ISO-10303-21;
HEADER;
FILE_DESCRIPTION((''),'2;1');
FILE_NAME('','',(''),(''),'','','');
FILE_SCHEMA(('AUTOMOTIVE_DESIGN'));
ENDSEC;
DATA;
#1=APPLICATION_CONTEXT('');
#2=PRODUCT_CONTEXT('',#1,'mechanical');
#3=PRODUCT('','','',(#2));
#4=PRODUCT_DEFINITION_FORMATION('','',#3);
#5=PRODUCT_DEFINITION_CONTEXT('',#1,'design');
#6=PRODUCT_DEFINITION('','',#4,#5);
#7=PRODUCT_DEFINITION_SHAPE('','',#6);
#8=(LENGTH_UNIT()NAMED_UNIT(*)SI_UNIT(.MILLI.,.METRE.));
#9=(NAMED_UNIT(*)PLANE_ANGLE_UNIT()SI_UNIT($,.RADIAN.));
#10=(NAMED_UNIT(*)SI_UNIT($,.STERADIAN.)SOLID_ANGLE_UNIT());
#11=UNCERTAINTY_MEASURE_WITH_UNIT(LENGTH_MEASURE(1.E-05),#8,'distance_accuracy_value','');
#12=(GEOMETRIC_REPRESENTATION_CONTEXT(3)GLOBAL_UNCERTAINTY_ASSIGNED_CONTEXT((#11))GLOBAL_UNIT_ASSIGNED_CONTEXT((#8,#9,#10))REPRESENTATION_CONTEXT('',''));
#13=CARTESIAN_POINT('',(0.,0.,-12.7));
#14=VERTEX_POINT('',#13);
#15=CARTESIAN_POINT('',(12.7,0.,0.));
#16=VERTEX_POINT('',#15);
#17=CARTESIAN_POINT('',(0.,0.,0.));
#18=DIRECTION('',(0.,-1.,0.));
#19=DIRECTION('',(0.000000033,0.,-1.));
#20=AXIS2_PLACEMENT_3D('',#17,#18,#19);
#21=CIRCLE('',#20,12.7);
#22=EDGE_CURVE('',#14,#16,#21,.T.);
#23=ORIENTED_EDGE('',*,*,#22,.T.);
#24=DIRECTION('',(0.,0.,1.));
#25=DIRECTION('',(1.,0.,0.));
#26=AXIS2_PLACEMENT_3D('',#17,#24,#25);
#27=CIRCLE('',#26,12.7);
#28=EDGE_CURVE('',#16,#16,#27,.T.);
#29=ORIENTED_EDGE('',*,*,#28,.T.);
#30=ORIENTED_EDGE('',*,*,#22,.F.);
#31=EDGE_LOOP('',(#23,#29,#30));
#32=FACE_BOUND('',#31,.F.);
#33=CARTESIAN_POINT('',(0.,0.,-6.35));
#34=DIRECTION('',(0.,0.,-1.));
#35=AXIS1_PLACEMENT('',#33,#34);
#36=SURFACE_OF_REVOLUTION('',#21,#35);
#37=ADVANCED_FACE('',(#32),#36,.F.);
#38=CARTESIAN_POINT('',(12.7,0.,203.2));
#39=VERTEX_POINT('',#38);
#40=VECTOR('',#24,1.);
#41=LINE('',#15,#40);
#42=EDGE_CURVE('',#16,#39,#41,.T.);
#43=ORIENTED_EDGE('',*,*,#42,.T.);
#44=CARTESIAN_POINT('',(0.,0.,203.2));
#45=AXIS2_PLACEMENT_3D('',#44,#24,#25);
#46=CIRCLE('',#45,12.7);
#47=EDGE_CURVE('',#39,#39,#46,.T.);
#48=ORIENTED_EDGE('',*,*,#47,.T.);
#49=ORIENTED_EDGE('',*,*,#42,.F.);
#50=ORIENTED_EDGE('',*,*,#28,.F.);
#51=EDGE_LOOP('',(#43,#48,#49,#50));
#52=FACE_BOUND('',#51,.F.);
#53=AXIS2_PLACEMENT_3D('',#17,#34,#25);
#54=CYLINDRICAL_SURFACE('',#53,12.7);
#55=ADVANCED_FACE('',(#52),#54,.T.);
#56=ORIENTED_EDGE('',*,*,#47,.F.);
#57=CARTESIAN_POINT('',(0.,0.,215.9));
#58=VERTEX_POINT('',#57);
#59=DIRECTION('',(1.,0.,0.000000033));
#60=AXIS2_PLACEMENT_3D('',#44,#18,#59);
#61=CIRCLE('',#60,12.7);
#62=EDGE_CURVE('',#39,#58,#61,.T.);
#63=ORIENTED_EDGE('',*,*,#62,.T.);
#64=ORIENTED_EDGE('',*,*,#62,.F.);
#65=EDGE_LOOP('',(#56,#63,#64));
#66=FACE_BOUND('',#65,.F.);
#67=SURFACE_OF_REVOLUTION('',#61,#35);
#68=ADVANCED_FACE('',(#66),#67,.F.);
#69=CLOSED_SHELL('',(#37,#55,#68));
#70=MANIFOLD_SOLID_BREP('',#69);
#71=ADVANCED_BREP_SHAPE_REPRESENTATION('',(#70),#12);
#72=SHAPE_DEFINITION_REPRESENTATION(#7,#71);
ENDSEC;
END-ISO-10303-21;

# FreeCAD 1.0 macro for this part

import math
import FreeCAD as App
import Part
import Sketcher

V = App.Vector
Q = App.Units.Quantity

doc = App.newDocument("Part")
body = doc.addObject("PartDesign::Body", "Body")

# Sketch on XY plane
sketch1 = doc.addObject("Sketcher::SketchObject", "Sketch")
body.addObject(sketch1)
sketch1.AttachmentSupport = (doc.XY_Plane, [""])
sketch1.MapMode = "FlatFace"
sketch1.addGeometry(Part.Circle(V(0, 0, 0), V(0, 0, 1), 13), False)
sketch1.addConstraint([
    Sketcher.Constraint("Coincident", 0, 3, -1, 1),
    Sketcher.Constraint("Diameter", 0, Q("1 in")),
])
pad1 = doc.addObject("PartDesign::Pad", "Pad")
body.addObject(pad1)
pad1.Profile = sketch1
pad1.Length = Q("8 in")

# Sketch on XZ plane
sketch2 = doc.addObject("Sketcher::SketchObject", "Sketch001")
body.addObject(sketch2)
sketch2.AttachmentSupport = (doc.XZ_Plane, [""])
sketch2.MapMode = "FlatFace"
sketch2.addGeometry([
    Part.LineSegment(V(0, 216, 0), V(0, 203, 0)),  # 0
    Part.LineSegment(V(0, 203, 0), V(13, 203, 0)),  # 1
    Part.ArcOfCircle(Part.Circle(V(0, 203, 0), V(0, 0, 1), 13), math.radians(0), math.radians(90)),  # 2
    Part.LineSegment(V(13, 0, 0), V(0, 0, 0)),  # 3
    Part.LineSegment(V(0, 0, 0), V(0, -13, 0)),  # 4
    Part.ArcOfCircle(Part.Circle(V(0, 0, 0), V(0, 0, 1), 13), math.radians(-90), math.radians(0)),  # 5
], False)
sketch2.addConstraint([
    Sketcher.Constraint("Coincident", 0, 2, 1, 1),
    Sketcher.Constraint("Coincident", 1, 2, 2, 1),
    Sketcher.Constraint("Coincident", 2, 2, 0, 1),
    Sketcher.Constraint("Coincident", 3, 2, 4, 1),
    Sketcher.Constraint("Coincident", 4, 2, 5, 1),
    Sketcher.Constraint("Coincident", 5, 2, 3, 1),
    Sketcher.Constraint("Vertical", 0),
    Sketcher.Constraint("Horizontal", 1),
    Sketcher.Constraint("Horizontal", 3),
    Sketcher.Constraint("Vertical", 4),
    Sketcher.Constraint("Coincident", 5, 3, -1, 1),
    Sketcher.Constraint("Coincident", 3, 2, -1, 1),
    Sketcher.Constraint("Coincident", 0, 2, 2, 3),
    Sketcher.Constraint("Equal", 2, 5),
    Sketcher.Constraint("PointOnObject", 2, 3, -2),
    Sketcher.Constraint("Radius", 2, Q("0.5 in")),
    Sketcher.Constraint("DistanceY", -1, 1, 2, 3, Q("8 in")),
])
revolution = doc.addObject("PartDesign::Revolution", "Revolution")
body.addObject(revolution)
revolution.Profile = sketch2
revolution.ReferenceAxis = (sketch2, ["V_Axis"])
revolution.Angle = 360

doc.recompute()
